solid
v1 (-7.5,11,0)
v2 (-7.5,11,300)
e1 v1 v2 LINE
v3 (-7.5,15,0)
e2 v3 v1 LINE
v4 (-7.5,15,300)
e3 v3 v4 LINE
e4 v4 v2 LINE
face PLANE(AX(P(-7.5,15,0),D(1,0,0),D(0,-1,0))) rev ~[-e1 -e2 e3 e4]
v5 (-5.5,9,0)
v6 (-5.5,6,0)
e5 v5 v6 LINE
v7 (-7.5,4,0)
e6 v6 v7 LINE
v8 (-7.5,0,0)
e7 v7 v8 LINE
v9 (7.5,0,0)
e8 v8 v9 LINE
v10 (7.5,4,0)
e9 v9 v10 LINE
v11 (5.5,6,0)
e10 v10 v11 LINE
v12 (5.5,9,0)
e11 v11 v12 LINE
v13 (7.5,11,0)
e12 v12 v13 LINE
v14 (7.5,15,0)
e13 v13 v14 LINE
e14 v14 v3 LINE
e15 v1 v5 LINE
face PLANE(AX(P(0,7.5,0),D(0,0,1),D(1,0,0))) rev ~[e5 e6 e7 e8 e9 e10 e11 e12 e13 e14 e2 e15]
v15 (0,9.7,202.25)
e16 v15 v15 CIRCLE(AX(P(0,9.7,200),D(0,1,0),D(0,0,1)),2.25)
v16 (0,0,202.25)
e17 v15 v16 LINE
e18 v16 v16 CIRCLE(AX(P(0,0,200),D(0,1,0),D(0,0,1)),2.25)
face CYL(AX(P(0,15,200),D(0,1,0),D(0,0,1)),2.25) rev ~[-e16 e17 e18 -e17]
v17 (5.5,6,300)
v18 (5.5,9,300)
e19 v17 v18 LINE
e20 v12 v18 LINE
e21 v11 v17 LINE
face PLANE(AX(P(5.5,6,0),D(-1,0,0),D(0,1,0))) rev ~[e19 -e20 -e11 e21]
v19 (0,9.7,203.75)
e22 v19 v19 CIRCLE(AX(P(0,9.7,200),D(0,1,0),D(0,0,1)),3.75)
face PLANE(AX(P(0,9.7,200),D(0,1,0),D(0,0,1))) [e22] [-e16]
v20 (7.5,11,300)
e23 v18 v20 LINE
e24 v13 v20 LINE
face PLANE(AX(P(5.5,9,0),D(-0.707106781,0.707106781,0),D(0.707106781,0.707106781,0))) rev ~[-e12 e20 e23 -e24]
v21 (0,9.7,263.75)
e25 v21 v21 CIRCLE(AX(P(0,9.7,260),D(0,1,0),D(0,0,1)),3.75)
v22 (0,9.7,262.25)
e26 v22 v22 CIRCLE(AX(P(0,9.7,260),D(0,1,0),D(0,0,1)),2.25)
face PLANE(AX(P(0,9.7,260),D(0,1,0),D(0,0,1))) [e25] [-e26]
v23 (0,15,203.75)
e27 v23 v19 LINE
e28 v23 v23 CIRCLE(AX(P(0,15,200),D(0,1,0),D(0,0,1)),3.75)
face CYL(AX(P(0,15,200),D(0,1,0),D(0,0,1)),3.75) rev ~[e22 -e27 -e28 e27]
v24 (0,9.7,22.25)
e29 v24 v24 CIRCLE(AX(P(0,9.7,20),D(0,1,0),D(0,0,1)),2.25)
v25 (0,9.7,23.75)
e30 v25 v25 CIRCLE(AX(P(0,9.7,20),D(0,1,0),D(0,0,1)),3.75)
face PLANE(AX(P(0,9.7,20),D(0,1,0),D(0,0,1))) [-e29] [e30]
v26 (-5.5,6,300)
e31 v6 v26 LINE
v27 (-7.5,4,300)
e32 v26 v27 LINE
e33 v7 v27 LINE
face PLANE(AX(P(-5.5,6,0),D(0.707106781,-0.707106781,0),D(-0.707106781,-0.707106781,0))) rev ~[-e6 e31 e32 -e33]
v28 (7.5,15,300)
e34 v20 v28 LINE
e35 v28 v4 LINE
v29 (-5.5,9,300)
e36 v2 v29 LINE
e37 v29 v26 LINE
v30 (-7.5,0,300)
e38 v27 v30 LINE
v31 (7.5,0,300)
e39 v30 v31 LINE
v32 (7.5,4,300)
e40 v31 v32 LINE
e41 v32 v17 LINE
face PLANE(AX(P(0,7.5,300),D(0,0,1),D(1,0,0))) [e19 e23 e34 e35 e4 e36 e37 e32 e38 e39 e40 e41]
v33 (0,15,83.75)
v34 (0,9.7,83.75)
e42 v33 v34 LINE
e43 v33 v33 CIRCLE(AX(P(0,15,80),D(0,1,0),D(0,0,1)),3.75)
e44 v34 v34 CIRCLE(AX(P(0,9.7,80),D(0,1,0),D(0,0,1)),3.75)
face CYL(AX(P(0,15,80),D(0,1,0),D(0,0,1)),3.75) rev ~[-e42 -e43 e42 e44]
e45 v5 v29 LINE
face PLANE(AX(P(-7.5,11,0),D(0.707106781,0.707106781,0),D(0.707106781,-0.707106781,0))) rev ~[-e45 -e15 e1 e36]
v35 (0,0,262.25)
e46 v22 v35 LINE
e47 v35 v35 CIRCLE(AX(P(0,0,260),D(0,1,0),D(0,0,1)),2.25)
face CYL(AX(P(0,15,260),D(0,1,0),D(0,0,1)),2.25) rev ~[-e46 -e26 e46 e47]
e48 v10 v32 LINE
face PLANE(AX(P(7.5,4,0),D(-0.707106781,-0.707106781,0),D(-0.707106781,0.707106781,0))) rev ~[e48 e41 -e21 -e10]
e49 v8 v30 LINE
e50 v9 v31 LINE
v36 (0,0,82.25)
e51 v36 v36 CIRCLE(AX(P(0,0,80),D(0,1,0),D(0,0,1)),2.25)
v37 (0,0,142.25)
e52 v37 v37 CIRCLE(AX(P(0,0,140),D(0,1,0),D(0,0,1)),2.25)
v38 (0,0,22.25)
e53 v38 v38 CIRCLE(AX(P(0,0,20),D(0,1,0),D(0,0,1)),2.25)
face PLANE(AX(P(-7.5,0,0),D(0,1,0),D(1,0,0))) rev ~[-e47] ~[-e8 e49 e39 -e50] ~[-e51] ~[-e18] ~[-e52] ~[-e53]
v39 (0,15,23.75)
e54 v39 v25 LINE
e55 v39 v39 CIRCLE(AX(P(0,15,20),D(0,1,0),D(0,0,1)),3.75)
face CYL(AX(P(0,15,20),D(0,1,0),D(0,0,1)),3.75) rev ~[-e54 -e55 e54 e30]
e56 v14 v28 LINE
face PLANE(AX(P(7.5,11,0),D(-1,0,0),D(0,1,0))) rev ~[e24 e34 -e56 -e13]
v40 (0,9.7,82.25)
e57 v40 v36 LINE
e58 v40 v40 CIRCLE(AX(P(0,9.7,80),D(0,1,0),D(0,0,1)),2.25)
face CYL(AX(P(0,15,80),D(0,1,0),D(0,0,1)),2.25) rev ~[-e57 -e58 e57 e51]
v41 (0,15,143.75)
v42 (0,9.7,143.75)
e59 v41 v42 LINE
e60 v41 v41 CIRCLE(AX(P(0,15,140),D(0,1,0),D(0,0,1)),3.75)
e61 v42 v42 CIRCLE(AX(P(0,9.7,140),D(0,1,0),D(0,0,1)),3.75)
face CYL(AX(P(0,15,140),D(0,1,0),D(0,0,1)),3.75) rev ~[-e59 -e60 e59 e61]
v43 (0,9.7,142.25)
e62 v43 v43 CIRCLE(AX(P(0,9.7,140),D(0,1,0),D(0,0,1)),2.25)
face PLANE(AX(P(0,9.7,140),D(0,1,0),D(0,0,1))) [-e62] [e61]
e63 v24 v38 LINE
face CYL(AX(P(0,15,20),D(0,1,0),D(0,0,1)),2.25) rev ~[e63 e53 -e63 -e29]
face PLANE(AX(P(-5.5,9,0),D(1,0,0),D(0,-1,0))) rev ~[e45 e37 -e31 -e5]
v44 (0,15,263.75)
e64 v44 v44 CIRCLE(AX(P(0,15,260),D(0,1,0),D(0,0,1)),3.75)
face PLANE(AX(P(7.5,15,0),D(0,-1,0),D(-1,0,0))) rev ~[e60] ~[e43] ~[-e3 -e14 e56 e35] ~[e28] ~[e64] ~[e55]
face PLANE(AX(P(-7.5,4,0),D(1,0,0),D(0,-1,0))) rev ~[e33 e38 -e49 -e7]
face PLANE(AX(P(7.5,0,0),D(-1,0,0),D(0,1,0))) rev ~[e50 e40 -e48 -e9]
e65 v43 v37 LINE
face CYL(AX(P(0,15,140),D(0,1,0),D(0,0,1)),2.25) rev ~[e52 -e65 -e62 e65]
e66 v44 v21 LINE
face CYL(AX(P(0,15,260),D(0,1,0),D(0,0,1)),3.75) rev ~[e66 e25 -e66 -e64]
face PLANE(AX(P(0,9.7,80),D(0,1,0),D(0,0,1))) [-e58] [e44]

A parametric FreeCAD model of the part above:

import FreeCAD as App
import Part
import Sketcher
from FreeCAD import Vector


def add_polygon(sketch, points):
    """Adds a closed chain of lines whose ends are joined by coincident constraints."""
    first, n = sketch.GeometryCount, len(points)
    for a, b in zip(points, points[1:] + points[:1]):
        sketch.addGeometry(Part.LineSegment(App.Vector(*a, 0), App.Vector(*b, 0)), False)
    for i in range(n):
        sketch.addConstraint(Sketcher.Constraint("Coincident", first + i, 2, first + (i + 1) % n, 1))

doc = App.newDocument("Part")
body = doc.addObject("PartDesign::Body", "Body")

# Sketch on XY plane
sketch1 = body.newObject("Sketcher::SketchObject", "Sketch")
sketch1.AttachmentSupport = (doc.getObject("XY_Plane"), [""])
sketch1.MapMode = "FlatFace"
add_polygon(sketch1, [(-7.5, 0), (7.5, 0), (7.5, 4), (5.5, 6), (5.5, 9), (7.5, 11), (7.5, 15), (-7.5, 15), (-7.5, 11), (-5.5, 9), (-5.5, 6), (-7.5, 4)])  # lines 0-11
sketch1.addConstraint(Sketcher.Constraint("Horizontal", 0))
sketch1.addConstraint(Sketcher.Constraint("Vertical", 1))
sketch1.addConstraint(Sketcher.Constraint("Vertical", 3))
sketch1.addConstraint(Sketcher.Constraint("Vertical", 5))
sketch1.addConstraint(Sketcher.Constraint("Horizontal", 6))
sketch1.addConstraint(Sketcher.Constraint("Vertical", 7))
sketch1.addConstraint(Sketcher.Constraint("Vertical", 9))
sketch1.addConstraint(Sketcher.Constraint("Vertical", 11))
sketch1.addConstraint(Sketcher.Constraint("Symmetric", 0, 2, 11, 2, -1, 1))
sketch1.addConstraint(Sketcher.Constraint("Symmetric", 4, 2, 7, 2, -2))
sketch1.addConstraint(Sketcher.Constraint("Symmetric", 3, 2, 8, 2, -2))
sketch1.addConstraint(Sketcher.Constraint("Perpendicular", 2, 4))
sketch1.addConstraint(Sketcher.Constraint("Perpendicular", 4, 8))
sketch1.addConstraint(Sketcher.Constraint("Perpendicular", 8, 10))
sketch1.addConstraint(Sketcher.Constraint("Horizontal", 2, 2, 9, 2))
sketch1.addConstraint(Sketcher.Constraint("Vertical", 1, 2, 4, 2))
sketch1.addConstraint(Sketcher.Constraint("Equal", 1, 5))
sketch1.addConstraint(Sketcher.Constraint("DistanceX", 0, 1, 0, 2, 15.0))
sketch1.addConstraint(Sketcher.Constraint("DistanceY", 1, 1, 1, 2, 4.0))
sketch1.addConstraint(Sketcher.Constraint("DistanceY", 3, 1, 3, 2, 3.0))
sketch1.addConstraint(Sketcher.Constraint("DistanceY", -1, 1, 2, 2, 6.0))
pad1 = body.newObject("PartDesign::Pad", "Pad")
pad1.Profile = sketch1
pad1.Length = 300

# Sketch on XZ plane
sketch2 = body.newObject("Sketcher::SketchObject", "Sketch001")
sketch2.AttachmentSupport = (doc.getObject("XZ_Plane"), [""])
sketch2.MapMode = "FlatFace"
sketch2.AttachmentOffset = App.Placement(Vector(0, 0, -15), App.Rotation())
sketch2.addGeometry(Part.Circle(Vector(0, 20, 0), Vector(0, 0, 1), 3.8), False)
sketch2.addGeometry(Part.Circle(Vector(0, 80, 0), Vector(0, 0, 1), 3.8), False)
sketch2.addGeometry(Part.Circle(Vector(0, 140, 0), Vector(0, 0, 1), 3.8), False)
sketch2.addGeometry(Part.Circle(Vector(0, 200, 0), Vector(0, 0, 1), 3.8), False)
sketch2.addGeometry(Part.Circle(Vector(0, 260, 0), Vector(0, 0, 1), 3.8), False)
sketch2.addConstraint(Sketcher.Constraint("Equal", 0, 1))
sketch2.addConstraint(Sketcher.Constraint("Equal", 1, 2))
sketch2.addConstraint(Sketcher.Constraint("Equal", 2, 3))
sketch2.addConstraint(Sketcher.Constraint("Equal", 3, 4))
sketch2.addConstraint(Sketcher.Constraint("PointOnObject", 0, 3, -2))
sketch2.addConstraint(Sketcher.Constraint("PointOnObject", 1, 3, -2))
sketch2.addConstraint(Sketcher.Constraint("PointOnObject", 2, 3, -2))
sketch2.addConstraint(Sketcher.Constraint("PointOnObject", 3, 3, -2))
sketch2.addConstraint(Sketcher.Constraint("PointOnObject", 4, 3, -2))
sketch2.addConstraint(Sketcher.Constraint("Diameter", 0, 7.5))
sketch2.addConstraint(Sketcher.Constraint("DistanceY", -1, 1, 0, 3, 20.0))
sketch2.addConstraint(Sketcher.Constraint("DistanceY", -1, 1, 1, 3, 80.0))
sketch2.addConstraint(Sketcher.Constraint("DistanceY", -1, 1, 2, 3, 140.0))
sketch2.addConstraint(Sketcher.Constraint("DistanceY", -1, 1, 3, 3, 200.0))
sketch2.addConstraint(Sketcher.Constraint("DistanceY", -1, 1, 4, 3, 260.0))
pocket1 = body.newObject("PartDesign::Pocket", "Pocket")
pocket1.Profile = sketch2
pocket1.Length = 5.3
pocket1.Reversed = True

# Sketch on XZ plane
sketch3 = body.newObject("Sketcher::SketchObject", "Sketch002")
sketch3.AttachmentSupport = (doc.getObject("XZ_Plane"), [""])
sketch3.MapMode = "FlatFace"
sketch3.AttachmentOffset = App.Placement(Vector(0, 0, -15), App.Rotation())
sketch3.addGeometry(Part.Circle(Vector(0, 20, 0), Vector(0, 0, 1), 2.2), False)
sketch3.addGeometry(Part.Circle(Vector(0, 80, 0), Vector(0, 0, 1), 2.2), False)
sketch3.addGeometry(Part.Circle(Vector(0, 140, 0), Vector(0, 0, 1), 2.2), False)
sketch3.addGeometry(Part.Circle(Vector(0, 200, 0), Vector(0, 0, 1), 2.2), False)
sketch3.addGeometry(Part.Circle(Vector(0, 260, 0), Vector(0, 0, 1), 2.2), False)
sketch3.addConstraint(Sketcher.Constraint("Equal", 0, 1))
sketch3.addConstraint(Sketcher.Constraint("Equal", 1, 2))
sketch3.addConstraint(Sketcher.Constraint("Equal", 2, 3))
sketch3.addConstraint(Sketcher.Constraint("Equal", 3, 4))
sketch3.addConstraint(Sketcher.Constraint("PointOnObject", 0, 3, -2))
sketch3.addConstraint(Sketcher.Constraint("PointOnObject", 1, 3, -2))
sketch3.addConstraint(Sketcher.Constraint("PointOnObject", 2, 3, -2))
sketch3.addConstraint(Sketcher.Constraint("PointOnObject", 3, 3, -2))
sketch3.addConstraint(Sketcher.Constraint("PointOnObject", 4, 3, -2))
sketch3.addConstraint(Sketcher.Constraint("Diameter", 0, 4.5))
sketch3.addConstraint(Sketcher.Constraint("DistanceY", -1, 1, 0, 3, 20.0))
sketch3.addConstraint(Sketcher.Constraint("DistanceY", -1, 1, 1, 3, 80.0))
sketch3.addConstraint(Sketcher.Constraint("DistanceY", -1, 1, 2, 3, 140.0))
sketch3.addConstraint(Sketcher.Constraint("DistanceY", -1, 1, 3, 3, 200.0))
sketch3.addConstraint(Sketcher.Constraint("DistanceY", -1, 1, 4, 3, 260.0))
pocket2 = body.newObject("PartDesign::Pocket", "Pocket001")
pocket2.Profile = sketch3
pocket2.Type = "ThroughAll"
pocket2.Reversed = True

doc.recompute()
